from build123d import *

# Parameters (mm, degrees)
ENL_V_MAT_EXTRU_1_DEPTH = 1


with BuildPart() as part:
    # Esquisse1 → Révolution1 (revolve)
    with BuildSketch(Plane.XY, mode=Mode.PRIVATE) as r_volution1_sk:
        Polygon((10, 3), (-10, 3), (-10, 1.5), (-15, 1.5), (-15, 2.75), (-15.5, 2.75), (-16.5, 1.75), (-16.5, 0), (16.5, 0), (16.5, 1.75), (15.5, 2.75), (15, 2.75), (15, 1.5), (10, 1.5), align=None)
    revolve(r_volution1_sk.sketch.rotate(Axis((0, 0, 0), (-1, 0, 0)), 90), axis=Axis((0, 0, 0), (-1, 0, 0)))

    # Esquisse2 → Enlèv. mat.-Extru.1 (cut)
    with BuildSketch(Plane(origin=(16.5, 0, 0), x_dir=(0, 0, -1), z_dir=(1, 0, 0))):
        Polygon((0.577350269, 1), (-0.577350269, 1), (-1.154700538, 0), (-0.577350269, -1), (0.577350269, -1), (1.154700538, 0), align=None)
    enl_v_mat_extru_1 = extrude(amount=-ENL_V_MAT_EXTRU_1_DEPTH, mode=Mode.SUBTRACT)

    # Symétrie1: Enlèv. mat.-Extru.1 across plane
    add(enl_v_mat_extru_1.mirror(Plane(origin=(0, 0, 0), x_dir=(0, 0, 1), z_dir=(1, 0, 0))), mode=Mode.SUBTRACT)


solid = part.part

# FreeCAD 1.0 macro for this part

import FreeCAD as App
import Part
import Sketcher
Q = App.Units.Quantity


def add_polygon(sketch, points):
    """Adds a closed chain of lines whose ends are joined by coincident constraints."""
    first, n = sketch.GeometryCount, len(points)
    for a, b in zip(points, points[1:] + points[:1]):
        sketch.addGeometry(Part.LineSegment(App.Vector(*a, 0), App.Vector(*b, 0)), False)
    for i in range(n):
        sketch.addConstraint(Sketcher.Constraint("Coincident", first + i, 2, first + (i + 1) % n, 1))

doc = App.newDocument("Part")
params = doc.addObject("Spreadsheet::Sheet", "Params")
for row, (alias, value) in enumerate([
    ("sketch1_width", "20 mm"),
    ("sketch1_width2", "5 mm"),
    ("sketch1_width3", "33 mm"),
    ("sketch1_width4", "0.5 mm"),
    ("sketch1_height", "1.5 mm"),
    ("revolution_angle", "360 deg"),
    ("pocket1_length", "1 mm"),
], start=1):
    params.set(f"A{row}", alias)
    params.set(f"B{row}", "=" + value)
    params.setAlias(f"B{row}", alias)

body = doc.addObject("PartDesign::Body", "Body")

sketch1 = body.newObject("Sketcher::SketchObject", "Sketch")
sketch1.AttachmentSupport = (doc.getObject("XY_Plane"), [""])
sketch1.MapMode = "FlatFace"
add_polygon(sketch1, [(10, 3), (-10, 3), (-10, 1.5), (-15, 1.5), (-15, 2.75), (-15.5, 2.75), (-16.5, 1.75), (-16.5, 0), (16.5, 0), (16.5, 1.75), (15.5, 2.75), (15, 2.75), (15, 1.5), (10, 1.5)])
sketch1.addConstraint([
    Sketcher.Constraint("Horizontal", 0),
    Sketcher.Constraint("Vertical", 1),
    Sketcher.Constraint("Horizontal", 2),
    Sketcher.Constraint("Vertical", 3),
    Sketcher.Constraint("Horizontal", 4),
    Sketcher.Constraint("Vertical", 6),
    Sketcher.Constraint("Horizontal", 7),
    Sketcher.Constraint("Vertical", 8),
    Sketcher.Constraint("Horizontal", 10),
    Sketcher.Constraint("Vertical", 11),
    Sketcher.Constraint("Horizontal", 12),
    Sketcher.Constraint("Vertical", 13),
    Sketcher.Constraint("Symmetric", 6, 2, 7, 2, -1, 1),
    Sketcher.Constraint("Symmetric", 4, 2, 9, 2, -2),
    Sketcher.Constraint("Symmetric", 2, 2, 11, 2, -2),
    Sketcher.Constraint("Perpendicular", 5, 9),
    Sketcher.Constraint("Horizontal", 5, 2, 8, 2),
    Sketcher.Constraint("Equal", 2, 12),
    Sketcher.Constraint("DistanceX", 0, 2, 0, 1, 20.0),
    Sketcher.Constraint("DistanceX", 2, 2, 2, 1, 5.0),
    Sketcher.Constraint("DistanceX", 7, 1, 7, 2, 33.0),
    Sketcher.Constraint("DistanceX", 4, 2, 4, 1, 0.5),
    Sketcher.Constraint("DistanceY", 1, 2, 1, 1, 1.5),
    Sketcher.Constraint("DistanceY", -1, 1, 0, 2, 3.0),
    Sketcher.Constraint("DistanceY", 3, 1, 3, 2, 1.25),
])
sketch1.setExpression("Constraints[32]", "Params.sketch1_width")
sketch1.setExpression("Constraints[33]", "Params.sketch1_width2")
sketch1.setExpression("Constraints[34]", "Params.sketch1_width3")
sketch1.setExpression("Constraints[35]", "Params.sketch1_width4")
sketch1.setExpression("Constraints[36]", "Params.sketch1_height")
revolution = body.newObject("PartDesign::Revolution", "Revolution")
revolution.Profile = sketch1
revolution.ReferenceAxis = (sketch1, ["H_Axis"])
revolution.setExpression("Angle", "Params.revolution_angle")

sketch2 = body.newObject("Sketcher::SketchObject", "Sketch001")
sketch2.AttachmentSupport = (doc.getObject("YZ_Plane"), [""])
sketch2.MapMode = "FlatFace"
sketch2.AttachmentOffset = App.Placement(App.Vector(0, 0, 16.5), App.Rotation())
add_polygon(sketch2, [(1, -0.57735), (1, 0.57735), (0, 1.154701), (-1, 0.57735), (-1, -0.57735), (0, -1.154701)])
sketch2.addConstraint([
    Sketcher.Constraint("Vertical", 0),
    Sketcher.Constraint("Vertical", 3),
    Sketcher.Constraint("Symmetric", 0, 2, 3, 2, -1, 1),
    Sketcher.Constraint("Symmetric", 1, 2, 4, 2, -1, 1),
    Sketcher.Constraint("PointOnObject", 1, 2, -2),
    Sketcher.Constraint("Parallel", 2, 5),
    Sketcher.Constraint("Horizontal", 0, 2, 2, 2),
    Sketcher.Constraint("Angle", 1, Q("150 deg")),
    Sketcher.Constraint("DistanceX", -1, 1, 0, 2, 1.0),
    Sketcher.Constraint("DistanceY", 0, 1, 0, 2, 1.154701),
])
pocket1 = body.newObject("PartDesign::Pocket", "Pocket")
pocket1.Profile = sketch2
pocket1.setExpression("Length", "Params.pocket1_length")
doc.recompute()

mirrored = body.newObject("PartDesign::Mirrored", "Mirrored")
mirrored.Originals = [pocket1]
mirrored.MirrorPlane = (doc.getObject("YZ_Plane"), [""])
body.Tip = mirrored

doc.recompute()
